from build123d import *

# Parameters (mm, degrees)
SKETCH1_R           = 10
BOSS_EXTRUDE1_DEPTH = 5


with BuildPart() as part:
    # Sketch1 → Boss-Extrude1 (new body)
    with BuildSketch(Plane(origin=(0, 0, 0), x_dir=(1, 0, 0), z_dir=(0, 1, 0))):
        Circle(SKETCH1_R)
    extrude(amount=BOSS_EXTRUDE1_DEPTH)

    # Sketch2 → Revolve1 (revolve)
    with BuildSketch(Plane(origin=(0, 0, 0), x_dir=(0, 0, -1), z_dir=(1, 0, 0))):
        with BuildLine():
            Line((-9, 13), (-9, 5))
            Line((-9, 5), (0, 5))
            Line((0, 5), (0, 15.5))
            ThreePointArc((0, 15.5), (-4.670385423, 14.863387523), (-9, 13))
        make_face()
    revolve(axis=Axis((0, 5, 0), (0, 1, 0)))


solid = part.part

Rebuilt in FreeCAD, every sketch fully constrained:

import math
import FreeCAD as App
import Part
import Sketcher
from FreeCAD import Vector
Q = App.Units.Quantity

doc = App.newDocument("Part")
body = doc.addObject("PartDesign::Body", "Body")

sketch1 = body.newObject("Sketcher::SketchObject", "Sketch")
sketch1.AttachmentSupport = (doc.getObject("XZ_Plane"), [""])
sketch1.MapMode = "FlatFace"
sketch1.addGeometry(Part.Circle(Vector(0, 0, 0), Vector(0, 0, 1), 10), False)
sketch1.addConstraint(Sketcher.Constraint("Coincident", 0, 3, -1, 1))
sketch1.addConstraint(Sketcher.Constraint("Diameter", 0, Q("20 mm")))
pad1 = body.newObject("PartDesign::Pad", "Pad")
pad1.Profile = sketch1
pad1.Length = 5
pad1.Reversed = True

sketch2 = body.newObject("Sketcher::SketchObject", "Sketch001")
sketch2.AttachmentSupport = (doc.getObject("YZ_Plane"), [""])
sketch2.MapMode = "FlatFace"
sketch2.addGeometry(Part.LineSegment(Vector(13, 9, 0), Vector(5, 9, 0)), False)
sketch2.addGeometry(Part.LineSegment(Vector(5, 9, 0), Vector(5, 0, 0)), False)
sketch2.addGeometry(Part.LineSegment(Vector(5, 0, 0), Vector(16, 0, 0)), False)
sketch2.addGeometry(Part.ArcOfCircle(Part.Circle(Vector(-2, 0, 0), Vector(0, 0, 1), 17), math.radians(0), math.radians(31)), False)
sketch2.addConstraint(Sketcher.Constraint("Coincident", 0, 2, 1, 1))
sketch2.addConstraint(Sketcher.Constraint("Coincident", 1, 2, 2, 1))
sketch2.addConstraint(Sketcher.Constraint("Coincident", 2, 2, 3, 1))
sketch2.addConstraint(Sketcher.Constraint("Coincident", 3, 2, 0, 1))
sketch2.addConstraint(Sketcher.Constraint("Horizontal", 0))
sketch2.addConstraint(Sketcher.Constraint("Vertical", 1))
sketch2.addConstraint(Sketcher.Constraint("Horizontal", 2))
sketch2.addConstraint(Sketcher.Constraint("PointOnObject", 3, 3, -1))
sketch2.addConstraint(Sketcher.Constraint("PointOnObject", 1, 2, -1))
sketch2.addConstraint(Sketcher.Constraint("DistanceX", 0, 2, 0, 1, Q("8 mm")))
sketch2.addConstraint(Sketcher.Constraint("DistanceY", 1, 2, 1, 1, Q("9 mm")))
sketch2.addConstraint(Sketcher.Constraint("Radius", 3, Q("17.45 mm")))
sketch2.addConstraint(Sketcher.Constraint("DistanceX", -1, 1, 0, 2, Q("5 mm")))
revolution = body.newObject("PartDesign::Revolution", "Revolution")
revolution.Profile = sketch2
revolution.ReferenceAxis = (sketch2, ["H_Axis"])
revolution.Angle = 360

doc.recompute()
